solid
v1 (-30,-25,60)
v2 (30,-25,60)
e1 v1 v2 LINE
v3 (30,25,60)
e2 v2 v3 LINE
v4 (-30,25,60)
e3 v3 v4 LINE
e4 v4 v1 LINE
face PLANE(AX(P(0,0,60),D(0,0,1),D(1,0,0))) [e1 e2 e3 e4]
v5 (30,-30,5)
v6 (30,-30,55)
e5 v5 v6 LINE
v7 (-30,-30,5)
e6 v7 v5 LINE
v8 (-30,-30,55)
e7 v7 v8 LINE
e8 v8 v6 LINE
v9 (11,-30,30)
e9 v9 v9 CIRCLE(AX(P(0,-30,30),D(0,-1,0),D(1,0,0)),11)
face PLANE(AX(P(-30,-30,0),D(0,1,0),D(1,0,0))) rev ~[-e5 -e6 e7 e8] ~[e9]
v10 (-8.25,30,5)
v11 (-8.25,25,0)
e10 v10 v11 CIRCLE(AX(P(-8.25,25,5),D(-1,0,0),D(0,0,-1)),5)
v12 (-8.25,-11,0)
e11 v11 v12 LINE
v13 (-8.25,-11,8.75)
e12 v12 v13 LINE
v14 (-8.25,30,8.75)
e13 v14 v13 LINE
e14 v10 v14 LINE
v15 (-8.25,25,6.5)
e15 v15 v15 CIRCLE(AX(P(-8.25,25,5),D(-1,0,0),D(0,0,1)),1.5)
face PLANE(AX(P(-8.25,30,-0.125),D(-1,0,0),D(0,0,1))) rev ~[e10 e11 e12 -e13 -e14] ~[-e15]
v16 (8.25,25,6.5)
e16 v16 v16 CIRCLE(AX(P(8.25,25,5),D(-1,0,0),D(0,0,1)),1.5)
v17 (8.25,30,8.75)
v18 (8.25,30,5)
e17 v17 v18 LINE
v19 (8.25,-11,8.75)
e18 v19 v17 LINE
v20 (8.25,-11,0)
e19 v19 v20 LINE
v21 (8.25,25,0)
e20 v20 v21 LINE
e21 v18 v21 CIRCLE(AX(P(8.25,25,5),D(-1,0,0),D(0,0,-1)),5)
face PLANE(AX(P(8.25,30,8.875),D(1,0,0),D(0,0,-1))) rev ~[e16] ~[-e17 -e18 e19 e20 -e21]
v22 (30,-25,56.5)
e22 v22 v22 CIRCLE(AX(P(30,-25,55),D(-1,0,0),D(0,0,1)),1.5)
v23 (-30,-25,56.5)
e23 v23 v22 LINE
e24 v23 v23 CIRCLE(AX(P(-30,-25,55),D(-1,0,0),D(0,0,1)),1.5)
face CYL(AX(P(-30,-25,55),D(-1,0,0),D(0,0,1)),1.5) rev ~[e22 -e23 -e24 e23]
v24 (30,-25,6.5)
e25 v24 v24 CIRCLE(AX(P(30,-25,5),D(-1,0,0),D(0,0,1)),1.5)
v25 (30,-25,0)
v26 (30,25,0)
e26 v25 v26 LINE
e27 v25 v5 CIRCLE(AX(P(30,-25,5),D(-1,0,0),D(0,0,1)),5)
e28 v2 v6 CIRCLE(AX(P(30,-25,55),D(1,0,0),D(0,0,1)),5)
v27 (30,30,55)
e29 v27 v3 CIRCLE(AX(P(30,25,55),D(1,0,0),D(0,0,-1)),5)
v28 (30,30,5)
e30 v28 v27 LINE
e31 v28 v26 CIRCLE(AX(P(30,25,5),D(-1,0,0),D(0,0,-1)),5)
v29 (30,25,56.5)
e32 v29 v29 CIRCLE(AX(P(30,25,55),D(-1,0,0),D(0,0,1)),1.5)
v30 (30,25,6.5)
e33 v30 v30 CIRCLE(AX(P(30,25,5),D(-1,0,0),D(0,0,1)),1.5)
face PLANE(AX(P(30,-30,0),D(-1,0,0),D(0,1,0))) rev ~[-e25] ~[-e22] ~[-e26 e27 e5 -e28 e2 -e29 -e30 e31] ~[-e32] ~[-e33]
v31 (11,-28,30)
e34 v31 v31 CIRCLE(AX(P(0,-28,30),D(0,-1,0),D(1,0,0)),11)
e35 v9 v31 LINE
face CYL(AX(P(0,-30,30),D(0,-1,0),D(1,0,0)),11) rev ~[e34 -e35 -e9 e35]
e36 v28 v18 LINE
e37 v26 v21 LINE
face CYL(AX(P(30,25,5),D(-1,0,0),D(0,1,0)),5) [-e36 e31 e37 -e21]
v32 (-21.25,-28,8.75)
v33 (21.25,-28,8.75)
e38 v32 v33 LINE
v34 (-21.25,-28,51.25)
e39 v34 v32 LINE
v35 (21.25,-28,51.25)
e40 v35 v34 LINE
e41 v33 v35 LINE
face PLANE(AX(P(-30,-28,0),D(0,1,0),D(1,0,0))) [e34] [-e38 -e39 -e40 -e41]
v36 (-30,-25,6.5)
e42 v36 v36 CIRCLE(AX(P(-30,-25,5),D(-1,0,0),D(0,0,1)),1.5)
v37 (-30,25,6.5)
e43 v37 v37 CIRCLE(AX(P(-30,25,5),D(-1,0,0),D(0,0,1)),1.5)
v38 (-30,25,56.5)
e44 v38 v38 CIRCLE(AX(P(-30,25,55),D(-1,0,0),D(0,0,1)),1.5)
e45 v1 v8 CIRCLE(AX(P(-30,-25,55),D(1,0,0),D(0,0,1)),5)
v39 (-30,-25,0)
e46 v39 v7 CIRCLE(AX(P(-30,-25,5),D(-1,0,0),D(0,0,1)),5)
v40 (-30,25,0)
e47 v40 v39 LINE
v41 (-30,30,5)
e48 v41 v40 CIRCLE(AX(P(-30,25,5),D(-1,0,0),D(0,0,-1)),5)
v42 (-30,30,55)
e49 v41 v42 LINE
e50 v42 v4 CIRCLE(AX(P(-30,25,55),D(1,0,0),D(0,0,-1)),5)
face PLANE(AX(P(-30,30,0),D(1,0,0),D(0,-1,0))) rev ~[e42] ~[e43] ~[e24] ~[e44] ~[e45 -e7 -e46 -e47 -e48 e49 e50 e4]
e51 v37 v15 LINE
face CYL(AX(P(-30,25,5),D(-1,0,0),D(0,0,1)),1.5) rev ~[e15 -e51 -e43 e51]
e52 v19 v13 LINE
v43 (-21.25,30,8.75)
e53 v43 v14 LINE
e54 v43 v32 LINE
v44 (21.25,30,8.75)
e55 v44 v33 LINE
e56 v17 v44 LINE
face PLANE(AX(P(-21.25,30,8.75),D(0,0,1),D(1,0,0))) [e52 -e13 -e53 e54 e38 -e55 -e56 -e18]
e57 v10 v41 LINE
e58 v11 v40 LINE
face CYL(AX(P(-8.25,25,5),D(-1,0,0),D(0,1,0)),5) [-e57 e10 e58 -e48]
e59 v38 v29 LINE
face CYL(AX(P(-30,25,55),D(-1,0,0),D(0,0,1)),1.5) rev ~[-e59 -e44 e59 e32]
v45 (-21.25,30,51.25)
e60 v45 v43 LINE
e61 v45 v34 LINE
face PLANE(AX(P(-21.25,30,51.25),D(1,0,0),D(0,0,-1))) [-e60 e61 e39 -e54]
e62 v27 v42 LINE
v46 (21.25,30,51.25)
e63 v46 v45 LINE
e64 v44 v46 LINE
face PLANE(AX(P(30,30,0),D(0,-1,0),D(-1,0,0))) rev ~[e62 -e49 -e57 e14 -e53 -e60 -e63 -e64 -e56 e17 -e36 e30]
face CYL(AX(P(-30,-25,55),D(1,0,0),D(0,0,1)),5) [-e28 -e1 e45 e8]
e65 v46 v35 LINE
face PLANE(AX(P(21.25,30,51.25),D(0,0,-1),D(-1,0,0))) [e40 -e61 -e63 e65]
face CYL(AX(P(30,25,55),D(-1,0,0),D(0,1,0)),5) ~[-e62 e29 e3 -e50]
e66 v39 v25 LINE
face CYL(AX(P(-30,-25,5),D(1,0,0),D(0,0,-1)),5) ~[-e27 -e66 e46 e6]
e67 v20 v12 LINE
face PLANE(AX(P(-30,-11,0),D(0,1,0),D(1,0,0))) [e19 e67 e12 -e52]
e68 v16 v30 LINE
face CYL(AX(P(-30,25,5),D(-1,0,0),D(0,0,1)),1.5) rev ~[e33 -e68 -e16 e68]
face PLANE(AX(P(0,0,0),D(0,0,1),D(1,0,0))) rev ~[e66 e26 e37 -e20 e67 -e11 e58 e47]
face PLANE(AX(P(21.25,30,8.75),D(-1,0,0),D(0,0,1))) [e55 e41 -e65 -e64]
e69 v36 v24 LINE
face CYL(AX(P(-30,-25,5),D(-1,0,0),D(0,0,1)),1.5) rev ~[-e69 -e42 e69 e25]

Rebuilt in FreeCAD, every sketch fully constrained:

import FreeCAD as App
import Part
import Sketcher
Q = App.Units.Quantity


def edges_at(feature, points):
    """Names of the edges that pass closest to the given points."""
    edges = feature.Shape.Edges
    near = lambda p: min(range(len(edges)), key=lambda i: edges[i].distToShape(Part.Vertex(*p))[0])
    return sorted({f"Edge{near(p) + 1}" for p in points})

doc = App.newDocument("Part")
body = doc.addObject("PartDesign::Body", "Body")

sketch1 = doc.addObject("Sketcher::SketchObject", "Sketch")
body.addObject(sketch1)
sketch1.AttachmentSupport = (doc.XY_Plane, [""])
sketch1.MapMode = "FlatFace"
sketch1.addGeometry([
    Part.LineSegment(App.Vector(-30, 30, 0), App.Vector(-30, -30, 0)),
    Part.LineSegment(App.Vector(-30, -30, 0), App.Vector(30, -30, 0)),
    Part.LineSegment(App.Vector(30, -30, 0), App.Vector(30, 30, 0)),
    Part.LineSegment(App.Vector(30, 30, 0), App.Vector(-30, 30, 0)),
], False)
sketch1.addConstraint([
    Sketcher.Constraint("Coincident", 0, 2, 1, 1),
    Sketcher.Constraint("Coincident", 1, 2, 2, 1),
    Sketcher.Constraint("Coincident", 2, 2, 3, 1),
    Sketcher.Constraint("Coincident", 3, 2, 0, 1),
    Sketcher.Constraint("Vertical", 0),
    Sketcher.Constraint("Horizontal", 1),
    Sketcher.Constraint("Vertical", 2),
    Sketcher.Constraint("Horizontal", 3),
    Sketcher.Constraint("Symmetric", 0, 2, 2, 2, -1, 1),
    Sketcher.Constraint("Equal", 3, 0),
    Sketcher.Constraint("DistanceX", 1, 1, 1, 2, Q("60 mm")),
])
pad1 = doc.addObject("PartDesign::Pad", "Pad")
body.addObject(pad1)
pad1.Profile = sketch1
pad1.Length = 60

sketch2 = doc.addObject("Sketcher::SketchObject", "Sketch001")
body.addObject(sketch2)
sketch2.AttachmentSupport = (doc.XZ_Plane, [""])
sketch2.MapMode = "FlatFace"
sketch2.AttachmentOffset = App.Placement(App.Vector(0, 0, -30), App.Rotation())
sketch2.addGeometry([
    Part.LineSegment(App.Vector(-21.25, 51.25, 0), App.Vector(21.25, 51.25, 0)),
    Part.LineSegment(App.Vector(21.25, 51.25, 0), App.Vector(21.25, 8.75, 0)),
    Part.LineSegment(App.Vector(21.25, 8.75, 0), App.Vector(-21.25, 8.75, 0)),
    Part.LineSegment(App.Vector(-21.25, 8.75, 0), App.Vector(-21.25, 51.25, 0)),
], False)
sketch2.addConstraint([
    Sketcher.Constraint("Coincident", 0, 2, 1, 1),
    Sketcher.Constraint("Coincident", 1, 2, 2, 1),
    Sketcher.Constraint("Coincident", 2, 2, 3, 1),
    Sketcher.Constraint("Coincident", 3, 2, 0, 1),
    Sketcher.Constraint("Horizontal", 0),
    Sketcher.Constraint("Vertical", 1),
    Sketcher.Constraint("Horizontal", 2),
    Sketcher.Constraint("Vertical", 3),
    Sketcher.Constraint("Equal", 2, 1),
    Sketcher.Constraint("DistanceX", 0, 1, 0, 2, Q("42.5 mm")),
    Sketcher.Constraint("DistanceX", -1, 1, 0, 2, Q("21.25 mm")),
    Sketcher.Constraint("DistanceY", -1, 1, 0, 2, Q("51.25 mm")),
])
pocket1 = doc.addObject("PartDesign::Pocket", "Pocket")
body.addObject(pocket1)
pocket1.Profile = sketch2
pocket1.Length = 58
pocket1.Reversed = True

sketch3 = doc.addObject("Sketcher::SketchObject", "Sketch002")
body.addObject(sketch3)
sketch3.AttachmentSupport = (doc.XZ_Plane, [""])
sketch3.MapMode = "FlatFace"
sketch3.AttachmentOffset = App.Placement(App.Vector(0, 0, -30), App.Rotation())
sketch3.addGeometry([
    Part.LineSegment(App.Vector(8.25, 8.875, 0), App.Vector(8.25, -0.125, 0)),
    Part.LineSegment(App.Vector(8.25, -0.125, 0), App.Vector(-8.25, -0.125, 0)),
    Part.LineSegment(App.Vector(-8.25, -0.125, 0), App.Vector(-8.25, 8.875, 0)),
    Part.LineSegment(App.Vector(-8.25, 8.875, 0), App.Vector(8.25, 8.875, 0)),
], False)
sketch3.addConstraint([
    Sketcher.Constraint("Coincident", 0, 2, 1, 1),
    Sketcher.Constraint("Coincident", 1, 2, 2, 1),
    Sketcher.Constraint("Coincident", 2, 2, 3, 1),
    Sketcher.Constraint("Coincident", 3, 2, 0, 1),
    Sketcher.Constraint("Vertical", 0),
    Sketcher.Constraint("Horizontal", 1),
    Sketcher.Constraint("Vertical", 2),
    Sketcher.Constraint("Horizontal", 3),
    Sketcher.Constraint("DistanceY", 0, 2, 0, 1, Q("9 mm")),
    Sketcher.Constraint("DistanceX", 1, 2, 1, 1, Q("16.5 mm")),
    Sketcher.Constraint("DistanceX", -1, 1, 0, 2, Q("8.25 mm")),
    Sketcher.Constraint("DistanceY", 0, 2, -1, 1, Q("0.125 mm")),
])
pocket2 = doc.addObject("PartDesign::Pocket", "Pocket001")
body.addObject(pocket2)
pocket2.Profile = sketch3
pocket2.Length = 41
pocket2.Reversed = True

sketch4 = doc.addObject("Sketcher::SketchObject", "Sketch003")
body.addObject(sketch4)
sketch4.AttachmentSupport = (doc.XZ_Plane, [""])
sketch4.MapMode = "FlatFace"
sketch4.AttachmentOffset = App.Placement(App.Vector(0, 0, 30), App.Rotation())
sketch4.addGeometry(Part.Circle(App.Vector(0, 30, 0), App.Vector(0, 0, 1), 11), False)
sketch4.addConstraint([
    Sketcher.Constraint("PointOnObject", 0, 3, -2),
    Sketcher.Constraint("Diameter", 0, Q("22 mm")),
    Sketcher.Constraint("DistanceY", -1, 1, 0, 3, Q("30 mm")),
])
pocket3 = doc.addObject("PartDesign::Pocket", "Pocket002")
body.addObject(pocket3)
pocket3.Profile = sketch4
pocket3.Length = 2

sketch5 = doc.addObject("Sketcher::SketchObject", "Sketch004")
body.addObject(sketch5)
sketch5.AttachmentSupport = (doc.YZ_Plane, [""])
sketch5.MapMode = "FlatFace"
sketch5.AttachmentOffset = App.Placement(App.Vector(0, 0, -30), App.Rotation())
sketch5.addGeometry([
    Part.Circle(App.Vector(25, 55, 0), App.Vector(0, 0, 1), 1.5),
    Part.Circle(App.Vector(-25, 55, 0), App.Vector(0, 0, 1), 1.5),
    Part.Circle(App.Vector(-25, 5, 0), App.Vector(0, 0, 1), 1.5),
    Part.Circle(App.Vector(25, 5, 0), App.Vector(0, 0, 1), 1.5),
], False)
sketch5.addConstraint([
    Sketcher.Constraint("Equal", 0, 1),
    Sketcher.Constraint("Equal", 1, 2),
    Sketcher.Constraint("Equal", 2, 3),
    Sketcher.Constraint("Symmetric", 0, 3, 1, 3, -2),
    Sketcher.Constraint("Symmetric", 2, 3, 3, 3, -2),
    Sketcher.Constraint("Vertical", 1, 3, 2, 3),
    Sketcher.Constraint("Diameter", 0, Q("3 mm")),
    Sketcher.Constraint("DistanceY", -1, 1, 2, 3, Q("5 mm")),
    Sketcher.Constraint("DistanceX", -1, 1, 0, 3, Q("25 mm")),
    Sketcher.Constraint("DistanceY", -1, 1, 0, 3, Q("55 mm")),
])
pocket4 = doc.addObject("PartDesign::Pocket", "Pocket003")
body.addObject(pocket4)
pocket4.Profile = sketch5
pocket4.Length = 60
pocket4.Reversed = True
doc.recompute()

fillet = doc.addObject("PartDesign::Fillet", "Fillet")
body.addObject(fillet)
fillet.Base = (pocket4, edges_at(pocket4, [
    (0, 30, 60),
    (0, -30, 60),
    (19.125, 30, 0),
    (-19.125, 30, 0),
    (0, -30, 0),
]))
fillet.Radius = 5

doc.recompute()
